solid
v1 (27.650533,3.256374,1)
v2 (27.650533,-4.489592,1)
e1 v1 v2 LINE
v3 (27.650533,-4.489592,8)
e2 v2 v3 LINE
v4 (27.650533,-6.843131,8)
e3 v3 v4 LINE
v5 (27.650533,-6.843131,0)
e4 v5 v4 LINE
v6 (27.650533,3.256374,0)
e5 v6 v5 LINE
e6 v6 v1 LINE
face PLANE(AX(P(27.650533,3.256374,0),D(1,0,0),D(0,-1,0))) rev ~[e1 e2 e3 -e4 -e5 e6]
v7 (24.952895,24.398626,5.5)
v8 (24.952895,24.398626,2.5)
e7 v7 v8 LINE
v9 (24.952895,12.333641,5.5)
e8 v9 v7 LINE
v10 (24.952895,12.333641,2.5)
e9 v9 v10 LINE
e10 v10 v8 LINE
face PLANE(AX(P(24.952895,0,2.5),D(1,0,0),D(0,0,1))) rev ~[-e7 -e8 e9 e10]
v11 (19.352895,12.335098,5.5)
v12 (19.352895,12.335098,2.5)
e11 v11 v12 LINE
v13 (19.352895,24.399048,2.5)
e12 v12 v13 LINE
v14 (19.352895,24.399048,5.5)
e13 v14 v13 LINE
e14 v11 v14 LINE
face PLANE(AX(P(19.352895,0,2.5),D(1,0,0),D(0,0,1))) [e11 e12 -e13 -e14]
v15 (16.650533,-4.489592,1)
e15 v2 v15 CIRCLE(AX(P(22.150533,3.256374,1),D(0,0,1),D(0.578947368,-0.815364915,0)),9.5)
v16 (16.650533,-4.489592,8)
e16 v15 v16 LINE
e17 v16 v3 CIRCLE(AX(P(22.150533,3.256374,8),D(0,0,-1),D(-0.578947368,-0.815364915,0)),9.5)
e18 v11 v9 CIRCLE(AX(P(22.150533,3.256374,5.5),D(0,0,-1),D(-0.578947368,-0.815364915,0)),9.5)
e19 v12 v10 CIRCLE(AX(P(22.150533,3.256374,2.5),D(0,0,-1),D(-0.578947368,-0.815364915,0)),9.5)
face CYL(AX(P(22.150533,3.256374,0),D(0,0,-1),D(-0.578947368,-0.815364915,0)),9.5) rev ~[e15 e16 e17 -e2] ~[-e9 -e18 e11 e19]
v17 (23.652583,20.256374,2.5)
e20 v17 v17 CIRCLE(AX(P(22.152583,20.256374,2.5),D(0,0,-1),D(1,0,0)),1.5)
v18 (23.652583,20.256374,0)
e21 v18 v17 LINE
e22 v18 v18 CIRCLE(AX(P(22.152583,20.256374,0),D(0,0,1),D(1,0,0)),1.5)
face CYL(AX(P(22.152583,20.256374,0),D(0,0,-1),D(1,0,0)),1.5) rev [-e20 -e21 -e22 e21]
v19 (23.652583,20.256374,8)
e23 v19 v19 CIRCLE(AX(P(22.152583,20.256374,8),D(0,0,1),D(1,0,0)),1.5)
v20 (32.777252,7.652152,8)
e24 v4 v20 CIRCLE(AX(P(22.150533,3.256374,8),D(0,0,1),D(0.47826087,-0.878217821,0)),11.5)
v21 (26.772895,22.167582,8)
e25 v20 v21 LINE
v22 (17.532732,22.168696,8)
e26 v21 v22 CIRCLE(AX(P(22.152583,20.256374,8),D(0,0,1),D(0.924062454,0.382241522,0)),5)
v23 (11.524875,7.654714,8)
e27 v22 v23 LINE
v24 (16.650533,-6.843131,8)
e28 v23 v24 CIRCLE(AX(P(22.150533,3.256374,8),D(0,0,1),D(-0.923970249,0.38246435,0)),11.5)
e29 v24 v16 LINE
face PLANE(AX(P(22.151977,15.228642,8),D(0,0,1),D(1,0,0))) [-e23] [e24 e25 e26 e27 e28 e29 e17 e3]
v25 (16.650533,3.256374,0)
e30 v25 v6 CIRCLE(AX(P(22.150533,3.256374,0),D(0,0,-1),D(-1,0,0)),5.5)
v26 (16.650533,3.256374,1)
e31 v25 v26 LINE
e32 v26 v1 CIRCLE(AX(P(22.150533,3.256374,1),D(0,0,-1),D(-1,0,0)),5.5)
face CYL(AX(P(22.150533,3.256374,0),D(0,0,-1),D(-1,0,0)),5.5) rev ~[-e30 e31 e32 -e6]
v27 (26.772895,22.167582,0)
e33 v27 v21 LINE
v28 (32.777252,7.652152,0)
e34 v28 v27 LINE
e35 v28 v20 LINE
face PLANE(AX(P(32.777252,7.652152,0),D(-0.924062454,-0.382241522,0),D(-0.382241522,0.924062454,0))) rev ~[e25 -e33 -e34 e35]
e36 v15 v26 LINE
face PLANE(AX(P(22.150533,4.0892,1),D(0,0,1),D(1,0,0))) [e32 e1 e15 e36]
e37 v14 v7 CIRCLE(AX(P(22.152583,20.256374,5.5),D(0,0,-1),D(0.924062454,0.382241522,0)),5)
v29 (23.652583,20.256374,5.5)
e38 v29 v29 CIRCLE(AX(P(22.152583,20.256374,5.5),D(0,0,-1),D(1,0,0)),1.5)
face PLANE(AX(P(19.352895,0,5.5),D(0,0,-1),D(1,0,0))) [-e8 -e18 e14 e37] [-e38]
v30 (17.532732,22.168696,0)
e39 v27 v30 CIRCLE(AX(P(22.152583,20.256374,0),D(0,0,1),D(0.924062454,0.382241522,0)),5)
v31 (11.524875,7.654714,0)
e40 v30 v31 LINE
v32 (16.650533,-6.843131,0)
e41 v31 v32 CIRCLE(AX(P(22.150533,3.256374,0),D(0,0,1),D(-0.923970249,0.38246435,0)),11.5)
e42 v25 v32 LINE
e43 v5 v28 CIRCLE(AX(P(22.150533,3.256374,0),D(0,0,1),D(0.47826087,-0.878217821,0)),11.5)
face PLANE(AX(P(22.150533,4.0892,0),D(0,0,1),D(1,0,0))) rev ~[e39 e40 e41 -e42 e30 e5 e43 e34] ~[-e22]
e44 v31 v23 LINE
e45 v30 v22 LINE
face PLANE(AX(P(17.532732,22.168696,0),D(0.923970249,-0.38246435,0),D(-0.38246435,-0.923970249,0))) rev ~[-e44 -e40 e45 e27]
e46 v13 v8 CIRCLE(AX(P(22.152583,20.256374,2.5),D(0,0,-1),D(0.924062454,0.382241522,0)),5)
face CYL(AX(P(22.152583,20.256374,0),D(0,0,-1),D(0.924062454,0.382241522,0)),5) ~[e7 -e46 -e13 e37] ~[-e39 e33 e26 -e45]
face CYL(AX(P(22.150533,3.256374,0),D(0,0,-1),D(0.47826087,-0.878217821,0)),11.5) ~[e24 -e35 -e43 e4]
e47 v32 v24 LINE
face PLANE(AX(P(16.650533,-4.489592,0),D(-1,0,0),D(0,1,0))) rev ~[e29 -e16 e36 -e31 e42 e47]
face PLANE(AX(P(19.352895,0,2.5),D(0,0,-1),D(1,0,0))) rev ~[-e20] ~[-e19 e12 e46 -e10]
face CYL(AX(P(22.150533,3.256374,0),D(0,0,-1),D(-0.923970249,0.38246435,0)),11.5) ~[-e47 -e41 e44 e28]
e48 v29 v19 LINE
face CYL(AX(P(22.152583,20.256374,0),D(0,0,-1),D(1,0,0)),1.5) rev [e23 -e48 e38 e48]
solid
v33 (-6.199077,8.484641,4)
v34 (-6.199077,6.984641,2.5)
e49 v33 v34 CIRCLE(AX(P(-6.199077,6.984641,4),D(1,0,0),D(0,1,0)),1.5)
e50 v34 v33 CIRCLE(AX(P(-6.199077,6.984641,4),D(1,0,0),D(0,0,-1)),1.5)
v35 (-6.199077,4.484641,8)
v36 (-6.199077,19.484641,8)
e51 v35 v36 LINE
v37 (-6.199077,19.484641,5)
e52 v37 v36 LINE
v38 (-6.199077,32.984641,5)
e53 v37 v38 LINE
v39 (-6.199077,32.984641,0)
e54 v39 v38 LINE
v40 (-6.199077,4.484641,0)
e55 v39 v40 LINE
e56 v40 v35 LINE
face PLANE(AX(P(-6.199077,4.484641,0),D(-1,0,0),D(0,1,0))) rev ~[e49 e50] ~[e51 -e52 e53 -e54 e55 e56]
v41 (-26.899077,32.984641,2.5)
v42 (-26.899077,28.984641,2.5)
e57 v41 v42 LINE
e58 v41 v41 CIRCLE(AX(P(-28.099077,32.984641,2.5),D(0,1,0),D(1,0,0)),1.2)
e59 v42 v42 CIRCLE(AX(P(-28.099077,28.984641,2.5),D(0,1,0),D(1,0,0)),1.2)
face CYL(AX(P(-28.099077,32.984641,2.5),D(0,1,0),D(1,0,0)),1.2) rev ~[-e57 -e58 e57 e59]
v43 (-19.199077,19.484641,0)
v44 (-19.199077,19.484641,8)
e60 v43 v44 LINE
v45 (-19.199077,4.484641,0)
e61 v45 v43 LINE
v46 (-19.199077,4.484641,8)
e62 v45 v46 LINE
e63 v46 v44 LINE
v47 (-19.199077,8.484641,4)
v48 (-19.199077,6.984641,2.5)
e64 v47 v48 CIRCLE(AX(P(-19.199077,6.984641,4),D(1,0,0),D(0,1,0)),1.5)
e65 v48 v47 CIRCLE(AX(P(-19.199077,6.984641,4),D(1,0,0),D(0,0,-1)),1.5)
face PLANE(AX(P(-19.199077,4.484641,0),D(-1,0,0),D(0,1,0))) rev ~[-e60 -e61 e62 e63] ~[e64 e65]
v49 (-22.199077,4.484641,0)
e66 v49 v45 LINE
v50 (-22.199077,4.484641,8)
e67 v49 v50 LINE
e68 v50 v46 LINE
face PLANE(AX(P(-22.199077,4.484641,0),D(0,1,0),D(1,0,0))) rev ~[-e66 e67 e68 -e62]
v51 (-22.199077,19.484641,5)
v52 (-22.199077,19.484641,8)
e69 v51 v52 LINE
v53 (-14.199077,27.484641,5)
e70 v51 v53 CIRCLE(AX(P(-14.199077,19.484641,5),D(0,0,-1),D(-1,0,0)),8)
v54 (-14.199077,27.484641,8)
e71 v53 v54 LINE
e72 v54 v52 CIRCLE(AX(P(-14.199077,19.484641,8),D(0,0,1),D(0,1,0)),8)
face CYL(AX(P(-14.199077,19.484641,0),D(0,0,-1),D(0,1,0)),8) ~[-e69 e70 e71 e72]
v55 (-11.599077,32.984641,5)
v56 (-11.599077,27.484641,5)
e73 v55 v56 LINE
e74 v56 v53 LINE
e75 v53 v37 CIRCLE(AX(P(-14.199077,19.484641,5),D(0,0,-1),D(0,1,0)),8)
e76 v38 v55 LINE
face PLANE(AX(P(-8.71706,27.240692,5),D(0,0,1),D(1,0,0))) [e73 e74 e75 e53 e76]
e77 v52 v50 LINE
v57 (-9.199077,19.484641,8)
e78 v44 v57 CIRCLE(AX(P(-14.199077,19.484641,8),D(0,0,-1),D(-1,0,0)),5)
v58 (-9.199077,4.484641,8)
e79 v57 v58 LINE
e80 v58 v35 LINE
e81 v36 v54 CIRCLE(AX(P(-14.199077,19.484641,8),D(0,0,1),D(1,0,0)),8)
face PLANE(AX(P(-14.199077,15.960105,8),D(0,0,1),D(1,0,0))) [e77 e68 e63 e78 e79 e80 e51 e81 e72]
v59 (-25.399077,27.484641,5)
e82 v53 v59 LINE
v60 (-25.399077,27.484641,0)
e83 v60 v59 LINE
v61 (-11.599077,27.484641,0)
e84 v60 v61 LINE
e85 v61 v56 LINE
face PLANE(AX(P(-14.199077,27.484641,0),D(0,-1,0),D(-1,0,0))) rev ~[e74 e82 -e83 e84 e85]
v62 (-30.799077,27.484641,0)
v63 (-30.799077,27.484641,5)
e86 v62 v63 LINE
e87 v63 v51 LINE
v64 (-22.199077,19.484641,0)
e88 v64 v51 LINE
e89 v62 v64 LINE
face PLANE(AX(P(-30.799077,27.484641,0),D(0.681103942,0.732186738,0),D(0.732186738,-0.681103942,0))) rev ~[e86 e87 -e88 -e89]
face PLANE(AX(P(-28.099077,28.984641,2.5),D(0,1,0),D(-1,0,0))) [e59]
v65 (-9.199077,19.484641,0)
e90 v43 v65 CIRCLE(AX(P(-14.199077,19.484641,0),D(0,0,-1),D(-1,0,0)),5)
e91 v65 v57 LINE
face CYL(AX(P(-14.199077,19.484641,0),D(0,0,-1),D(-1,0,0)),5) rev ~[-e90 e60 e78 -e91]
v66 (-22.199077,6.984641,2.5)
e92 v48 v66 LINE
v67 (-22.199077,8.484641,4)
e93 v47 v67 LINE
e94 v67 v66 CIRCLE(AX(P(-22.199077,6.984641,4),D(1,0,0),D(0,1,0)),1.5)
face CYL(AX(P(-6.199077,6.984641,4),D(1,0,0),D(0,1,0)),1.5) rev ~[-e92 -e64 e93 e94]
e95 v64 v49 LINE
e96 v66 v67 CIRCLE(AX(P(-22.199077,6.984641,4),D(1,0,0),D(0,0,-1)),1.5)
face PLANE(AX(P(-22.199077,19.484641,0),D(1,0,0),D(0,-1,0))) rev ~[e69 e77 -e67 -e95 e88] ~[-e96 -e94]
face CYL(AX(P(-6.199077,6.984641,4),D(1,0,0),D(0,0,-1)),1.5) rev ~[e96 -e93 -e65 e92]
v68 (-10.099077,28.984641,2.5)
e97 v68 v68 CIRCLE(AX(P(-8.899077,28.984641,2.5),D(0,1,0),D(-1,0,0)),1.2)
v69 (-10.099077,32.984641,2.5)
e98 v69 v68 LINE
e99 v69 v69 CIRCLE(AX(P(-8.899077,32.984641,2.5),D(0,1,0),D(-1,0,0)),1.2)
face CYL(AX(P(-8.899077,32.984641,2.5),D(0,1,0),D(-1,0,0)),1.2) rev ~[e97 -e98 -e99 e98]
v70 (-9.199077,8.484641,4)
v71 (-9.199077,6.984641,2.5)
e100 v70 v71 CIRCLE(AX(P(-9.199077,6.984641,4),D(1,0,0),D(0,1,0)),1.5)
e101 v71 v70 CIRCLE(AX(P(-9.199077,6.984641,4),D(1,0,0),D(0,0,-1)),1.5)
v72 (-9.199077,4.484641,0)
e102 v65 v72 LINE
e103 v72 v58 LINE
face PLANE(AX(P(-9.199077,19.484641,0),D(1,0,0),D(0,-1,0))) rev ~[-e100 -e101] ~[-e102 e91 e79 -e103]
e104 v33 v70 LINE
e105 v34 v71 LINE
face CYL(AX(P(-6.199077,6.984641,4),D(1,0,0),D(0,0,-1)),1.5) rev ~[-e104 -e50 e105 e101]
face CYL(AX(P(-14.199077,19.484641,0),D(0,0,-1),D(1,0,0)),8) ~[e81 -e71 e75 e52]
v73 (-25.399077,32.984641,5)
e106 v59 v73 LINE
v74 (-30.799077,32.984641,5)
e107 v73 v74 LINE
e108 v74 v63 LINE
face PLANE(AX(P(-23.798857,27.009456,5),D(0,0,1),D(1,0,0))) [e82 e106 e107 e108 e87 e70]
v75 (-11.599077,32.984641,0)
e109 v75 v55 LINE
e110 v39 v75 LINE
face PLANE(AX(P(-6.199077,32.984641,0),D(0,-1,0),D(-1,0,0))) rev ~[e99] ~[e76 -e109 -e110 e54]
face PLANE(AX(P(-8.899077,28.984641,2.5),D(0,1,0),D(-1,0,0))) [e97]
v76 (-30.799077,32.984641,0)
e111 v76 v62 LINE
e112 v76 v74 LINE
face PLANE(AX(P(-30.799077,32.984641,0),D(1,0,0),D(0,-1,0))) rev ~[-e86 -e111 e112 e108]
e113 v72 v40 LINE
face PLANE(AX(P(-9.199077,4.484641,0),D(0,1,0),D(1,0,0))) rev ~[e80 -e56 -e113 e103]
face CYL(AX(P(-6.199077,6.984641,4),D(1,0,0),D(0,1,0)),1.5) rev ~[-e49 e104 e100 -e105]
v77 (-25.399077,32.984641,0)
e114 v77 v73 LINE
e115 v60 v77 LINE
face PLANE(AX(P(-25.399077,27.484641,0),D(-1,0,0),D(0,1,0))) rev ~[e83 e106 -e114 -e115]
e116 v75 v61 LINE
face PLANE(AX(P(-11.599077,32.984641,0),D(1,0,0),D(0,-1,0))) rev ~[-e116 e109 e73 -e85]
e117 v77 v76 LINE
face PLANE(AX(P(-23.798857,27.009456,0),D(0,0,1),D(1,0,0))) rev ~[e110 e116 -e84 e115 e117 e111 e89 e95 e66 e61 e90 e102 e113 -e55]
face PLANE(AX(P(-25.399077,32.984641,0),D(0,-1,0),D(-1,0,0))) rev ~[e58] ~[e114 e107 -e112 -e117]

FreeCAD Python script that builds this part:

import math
import FreeCAD as App
import Part
import Sketcher
from FreeCAD import Vector
Q = App.Units.Quantity

doc = App.newDocument("Part")
body = doc.addObject("PartDesign::Body", "Body")

sketch1 = body.newObject("Sketcher::SketchObject", "Sketch")
sketch1.AttachmentSupport = (doc.getObject("XY_Plane"), [""])
sketch1.MapMode = "FlatFace"
sketch1.addGeometry([
    Part.ArcOfCircle(Part.Circle(Vector(-14.2, 19.5, 0), Vector(0, 0, 1), 5), math.radians(0), math.radians(180)),
    Part.LineSegment(Vector(-9.2, 19.5, 0), Vector(-9.2, 4.5, 0)),
    Part.LineSegment(Vector(-9.2, 4.5, 0), Vector(-6.2, 4.5, 0)),
    Part.LineSegment(Vector(-6.2, 4.5, 0), Vector(-6.2, 19.5, 0)),
    Part.ArcOfCircle(Part.Circle(Vector(-14.2, 19.5, 0), Vector(0, 0, 1), 8), math.radians(0), math.radians(90)),
    Part.ArcOfCircle(Part.Circle(Vector(-14.2, 19.5, 0), Vector(0, 0, 1), 8), math.radians(90), math.radians(180)),
    Part.LineSegment(Vector(-22.2, 19.5, 0), Vector(-22.2, 4.5, 0)),
    Part.LineSegment(Vector(-22.2, 4.5, 0), Vector(-19.2, 4.5, 0)),
    Part.LineSegment(Vector(-19.2, 4.5, 0), Vector(-19.2, 19.5, 0)),
], False)
sketch1.addConstraint([
    Sketcher.Constraint("Tangent", 0, 1, 1, 1),
    Sketcher.Constraint("Coincident", 1, 2, 2, 1),
    Sketcher.Constraint("Coincident", 2, 2, 3, 1),
    Sketcher.Constraint("Tangent", 3, 2, 4, 1),
    Sketcher.Constraint("Tangent", 4, 2, 5, 1),
    Sketcher.Constraint("Tangent", 5, 2, 6, 1),
    Sketcher.Constraint("Coincident", 6, 2, 7, 1),
    Sketcher.Constraint("Coincident", 7, 2, 8, 1),
    Sketcher.Constraint("Tangent", 8, 2, 0, 2),
    Sketcher.Constraint("Vertical", 1),
    Sketcher.Constraint("Horizontal", 2),
    Sketcher.Constraint("Vertical", 3),
    Sketcher.Constraint("Vertical", 6),
    Sketcher.Constraint("Horizontal", 7),
    Sketcher.Constraint("Vertical", 8),
    Sketcher.Constraint("Coincident", 4, 3, 0, 3),
    Sketcher.Constraint("Equal", 4, 5),
    Sketcher.Constraint("Horizontal", 2, 2, 6, 2),
    Sketcher.Constraint("Vertical", 5, 3, 4, 2),
    Sketcher.Constraint("Radius", 0, Q("5 mm")),
    Sketcher.Constraint("Radius", 4, Q("8 mm")),
    Sketcher.Constraint("DistanceY", 1, 2, 1, 1, Q("15 mm")),
    Sketcher.Constraint("DistanceY", -1, 1, 0, 3, Q("19.484641 mm")),
    Sketcher.Constraint("DistanceX", 0, 3, -1, 1, Q("14.199077 mm")),
])
pad1 = body.newObject("PartDesign::Pad", "Pad")
pad1.Profile = sketch1
pad1.Length = 8

sketch2 = body.newObject("Sketcher::SketchObject", "Sketch001")
sketch2.AttachmentSupport = (doc.getObject("XY_Plane"), [""])
sketch2.MapMode = "FlatFace"
sketch2.addGeometry([
    Part.LineSegment(Vector(-30.8, 27.5, 0), Vector(-22.2, 19.5, 0)),
    Part.ArcOfCircle(Part.Circle(Vector(-14.2, 19.5, 0), Vector(0, 0, 1), 8), math.radians(90), math.radians(180)),
    Part.LineSegment(Vector(-14.2, 27.5, 0), Vector(-25.4, 27.5, 0)),
    Part.LineSegment(Vector(-25.4, 27.5, 0), Vector(-25.4, 33, 0)),
    Part.LineSegment(Vector(-25.4, 33, 0), Vector(-30.8, 33, 0)),
    Part.LineSegment(Vector(-30.8, 33, 0), Vector(-30.8, 27.5, 0)),
    Part.ArcOfCircle(Part.Circle(Vector(-14.2, 19.5, 0), Vector(0, 0, 1), 8), math.radians(0), math.radians(90)),
    Part.LineSegment(Vector(-6.2, 19.5, 0), Vector(-6.2, 33, 0)),
    Part.LineSegment(Vector(-6.2, 33, 0), Vector(-11.6, 33, 0)),
    Part.LineSegment(Vector(-11.6, 33, 0), Vector(-11.6, 27.5, 0)),
    Part.LineSegment(Vector(-11.6, 27.5, 0), Vector(-14.2, 27.5, 0)),
], False)
sketch2.addConstraint([
    Sketcher.Constraint("Coincident", 0, 2, 1, 2),
    Sketcher.Constraint("Tangent", 1, 1, 2, 1),
    Sketcher.Constraint("Coincident", 2, 2, 3, 1),
    Sketcher.Constraint("Coincident", 3, 2, 4, 1),
    Sketcher.Constraint("Coincident", 4, 2, 5, 1),
    Sketcher.Constraint("Coincident", 5, 2, 0, 1),
    Sketcher.Constraint("Tangent", 6, 1, 7, 1),
    Sketcher.Constraint("Coincident", 7, 2, 8, 1),
    Sketcher.Constraint("Coincident", 8, 2, 9, 1),
    Sketcher.Constraint("Coincident", 9, 2, 10, 1),
    Sketcher.Constraint("Tangent", 10, 2, 6, 2),
    Sketcher.Constraint("Horizontal", 2),
    Sketcher.Constraint("Vertical", 3),
    Sketcher.Constraint("Horizontal", 4),
    Sketcher.Constraint("Vertical", 5),
    Sketcher.Constraint("Vertical", 7),
    Sketcher.Constraint("Horizontal", 8),
    Sketcher.Constraint("Vertical", 9),
    Sketcher.Constraint("Horizontal", 10),
    Sketcher.Constraint("Coincident", 6, 3, 1, 3),
    Sketcher.Constraint("Equal", 1, 6),
    Sketcher.Constraint("Horizontal", 6, 3, 0, 2),
    Sketcher.Constraint("Horizontal", 2, 2, 5, 2),
    Sketcher.Constraint("Horizontal", 4, 2, 7, 2),
    Sketcher.Constraint("Equal", 4, 8),
    Sketcher.Constraint("Radius", 1, Q("8 mm")),
    Sketcher.Constraint("DistanceX", 2, 2, 2, 1, Q("11.2 mm")),
    Sketcher.Constraint("DistanceX", 4, 2, 4, 1, Q("5.4 mm")),
    Sketcher.Constraint("DistanceY", 3, 1, 3, 2, Q("5.5 mm")),
    Sketcher.Constraint("DistanceY", -1, 1, 1, 3, Q("19.484641 mm")),
    Sketcher.Constraint("DistanceX", 1, 3, -1, 1, Q("14.199077 mm")),
])
pad2 = body.newObject("PartDesign::Pad", "Pad001")
pad2.Profile = sketch2
pad2.Length = 5

sketch3 = body.newObject("Sketcher::SketchObject", "Sketch002")
sketch3.AttachmentSupport = (doc.getObject("XZ_Plane"), [""])
sketch3.MapMode = "FlatFace"
sketch3.AttachmentOffset = App.Placement(Vector(0, 0, -32.984641), App.Rotation())
sketch3.addGeometry([
    Part.Circle(Vector(-8.9, 2.5, 0), Vector(0, 0, 1), 1.2),
    Part.Circle(Vector(-28.1, 2.5, 0), Vector(0, 0, 1), 1.2),
], False)
sketch3.addConstraint([
    Sketcher.Constraint("Equal", 0, 1),
    Sketcher.Constraint("Horizontal", 0, 3, 1, 3),
    Sketcher.Constraint("Diameter", 0, Q("2.4 mm")),
    Sketcher.Constraint("DistanceY", -1, 1, 0, 3, Q("2.5 mm")),
    Sketcher.Constraint("DistanceX", 1, 3, 0, 3, Q("19.2 mm")),
    Sketcher.Constraint("DistanceX", 0, 3, -1, 1, Q("8.899077 mm")),
])
pocket1 = body.newObject("PartDesign::Pocket", "Pocket")
pocket1.Profile = sketch3
pocket1.Length = 4
pocket1.Reversed = True

sketch4 = body.newObject("Sketcher::SketchObject", "Sketch003")
sketch4.AttachmentSupport = (doc.getObject("YZ_Plane"), [""])
sketch4.MapMode = "FlatFace"
sketch4.AttachmentOffset = App.Placement(Vector(0, 0, -6.199077), App.Rotation())
sketch4.addGeometry([
    Part.ArcOfCircle(Part.Circle(Vector(7, 4, 0), Vector(0, 0, 1), 1.5), math.radians(-90), math.radians(0)),
    Part.ArcOfCircle(Part.Circle(Vector(7, 4, 0), Vector(0, 0, 1), 1.5), math.radians(0), math.radians(270)),
], False)
sketch4.addConstraint([
    Sketcher.Constraint("Tangent", 0, 1, 1, 2),
    Sketcher.Constraint("Coincident", 1, 1, 0, 2),
    Sketcher.Constraint("Horizontal", 0, 3, 1, 1),
    Sketcher.Constraint("Vertical", 1, 3, 0, 1),
    Sketcher.Constraint("Radius", 0, Q("1.5 mm")),
    Sketcher.Constraint("DistanceY", -1, 1, 0, 3, Q("4 mm")),
    Sketcher.Constraint("DistanceX", -1, 1, 0, 3, Q("6.984641 mm")),
])
pocket2 = body.newObject("PartDesign::Pocket", "Pocket001")
pocket2.Profile = sketch4
pocket2.Length = 20
body2 = doc.addObject("PartDesign::Body", "Body001")

sketch5 = body2.newObject("Sketcher::SketchObject", "Sketch004")
sketch5.AttachmentSupport = (doc.getObject("XY_Plane001"), [""])
sketch5.MapMode = "FlatFace"
sketch5.addGeometry([
    Part.LineSegment(Vector(17.5, 22.2, 0), Vector(11.5, 7.7, 0)),
    Part.ArcOfCircle(Part.Circle(Vector(22.2, 3.3, 0), Vector(0, 0, 1), 11.5), math.radians(158), math.radians(241)),
    Part.LineSegment(Vector(16.7, -6.8, 0), Vector(16.7, -4.5, 0)),
    Part.ArcOfCircle(Part.Circle(Vector(22.2, 3.3, 0), Vector(0, 0, 1), 9.5), math.radians(-55), math.radians(235)),
    Part.LineSegment(Vector(27.7, -4.5, 0), Vector(27.7, -6.8, 0)),
    Part.ArcOfCircle(Part.Circle(Vector(22.2, 3.3, 0), Vector(0, 0, 1), 11.5), math.radians(-61), math.radians(22)),
    Part.LineSegment(Vector(32.8, 7.7, 0), Vector(26.8, 22.2, 0)),
    Part.ArcOfCircle(Part.Circle(Vector(22.2, 20.3, 0), Vector(0, 0, 1), 5), math.radians(22), math.radians(158)),
    Part.Circle(Vector(22.2, 20.3, 0), Vector(0, 0, 1), 1.5),
], False)
sketch5.addConstraint([
    Sketcher.Constraint("Tangent", 0, 2, 1, 1),
    Sketcher.Constraint("Coincident", 1, 2, 2, 1),
    Sketcher.Constraint("Coincident", 2, 2, 3, 2),
    Sketcher.Constraint("Coincident", 3, 1, 4, 1),
    Sketcher.Constraint("Coincident", 4, 2, 5, 1),
    Sketcher.Constraint("Tangent", 5, 2, 6, 1),
    Sketcher.Constraint("Tangent", 6, 2, 7, 1),
    Sketcher.Constraint("Tangent", 7, 2, 0, 1),
    Sketcher.Constraint("Vertical", 2),
    Sketcher.Constraint("Vertical", 4),
    Sketcher.Constraint("Coincident", 3, 3, 1, 3),
    Sketcher.Constraint("Coincident", 5, 3, 1, 3),
    Sketcher.Constraint("Coincident", 8, 3, 7, 3),
    Sketcher.Constraint("Equal", 1, 5),
    Sketcher.Constraint("Horizontal", 2, 2, 3, 1),
    Sketcher.Constraint("Diameter", 8, Q("3 mm")),
    Sketcher.Constraint("Radius", 7, Q("5 mm")),
    Sketcher.Constraint("Radius", 1, Q("11.5 mm")),
    Sketcher.Constraint("Radius", 3, Q("9.5 mm")),
    Sketcher.Constraint("DistanceY", 1, 3, 7, 3, Q("17 mm")),
    Sketcher.Constraint("DistanceX", 2, 2, 3, 1, Q("11 mm")),
    Sketcher.Constraint("DistanceX", 7, 2, 5, 3, Q("4.617801 mm")),
    Sketcher.Constraint("DistanceY", 1, 2, -1, 1, Q("6.843131 mm")),
    Sketcher.Constraint("DistanceX", -1, 1, 5, 2, Q("32.777252 mm")),
])
pad3 = body2.newObject("PartDesign::Pad", "Pad002")
pad3.Profile = sketch5
pad3.Length = 8

sketch6 = body2.newObject("Sketcher::SketchObject", "Sketch005")
sketch6.AttachmentSupport = (doc.getObject("XY_Plane001"), [""])
sketch6.MapMode = "FlatFace"
sketch6.addGeometry([
    Part.LineSegment(Vector(28, 3, 0), Vector(28, -4, 0)),
    Part.ArcOfCircle(Part.Circle(Vector(22, 3, 0), Vector(0, 0, 1), 10), math.radians(-55), math.radians(235)),
    Part.LineSegment(Vector(17, -4, 0), Vector(17, 3, 0)),
    Part.ArcOfCircle(Part.Circle(Vector(22, 3, 0), Vector(0, 0, 1), 6), math.radians(0), math.radians(180)),
], False)
sketch6.addConstraint([
    Sketcher.Constraint("Coincident", 0, 2, 1, 1),
    Sketcher.Constraint("Coincident", 1, 2, 2, 1),
    Sketcher.Constraint("Tangent", 2, 2, 3, 2),
    Sketcher.Constraint("Tangent", 3, 1, 0, 1),
    Sketcher.Constraint("Vertical", 0),
    Sketcher.Constraint("Vertical", 2),
    Sketcher.Constraint("Coincident", 3, 3, 1, 3),
    Sketcher.Constraint("Radius", 1, Q("9.5 mm")),
    Sketcher.Constraint("Radius", 3, Q("5.5 mm")),
    Sketcher.Constraint("DistanceX", -1, 1, 1, 3, Q("22.150533 mm")),
    Sketcher.Constraint("DistanceY", -1, 1, 1, 3, Q("3.256374 mm")),
])
pad4 = body2.newObject("PartDesign::Pad", "Pad003")
pad4.Profile = sketch6
pad4.Length = 1

sketch7 = body2.newObject("Sketcher::SketchObject", "Sketch006")
sketch7.AttachmentSupport = (doc.getObject("XZ_Plane001"), [""])
sketch7.MapMode = "FlatFace"
sketch7.addGeometry([
    Part.LineSegment(Vector(19.4, 5.5, 0), Vector(19.4, 2.5, 0)),
    Part.LineSegment(Vector(19.4, 2.5, 0), Vector(25, 2.5, 0)),
    Part.LineSegment(Vector(25, 2.5, 0), Vector(25, 5.5, 0)),
    Part.LineSegment(Vector(25, 5.5, 0), Vector(19.4, 5.5, 0)),
], False)
sketch7.addConstraint([
    Sketcher.Constraint("Coincident", 0, 2, 1, 1),
    Sketcher.Constraint("Coincident", 1, 2, 2, 1),
    Sketcher.Constraint("Coincident", 2, 2, 3, 1),
    Sketcher.Constraint("Coincident", 3, 2, 0, 1),
    Sketcher.Constraint("Vertical", 0),
    Sketcher.Constraint("Horizontal", 1),
    Sketcher.Constraint("Vertical", 2),
    Sketcher.Constraint("Horizontal", 3),
    Sketcher.Constraint("DistanceY", 0, 2, 0, 1, Q("3 mm")),
    Sketcher.Constraint("DistanceX", 1, 1, 1, 2, Q("5.6 mm")),
    Sketcher.Constraint("DistanceY", -1, 1, 0, 2, Q("2.5 mm")),
    Sketcher.Constraint("DistanceX", -1, 1, 0, 2, Q("19.352895 mm")),
])
pocket3 = body2.newObject("PartDesign::Pocket", "Pocket002")
pocket3.Profile = sketch7
pocket3.Length = 31.2

doc.recompute()
